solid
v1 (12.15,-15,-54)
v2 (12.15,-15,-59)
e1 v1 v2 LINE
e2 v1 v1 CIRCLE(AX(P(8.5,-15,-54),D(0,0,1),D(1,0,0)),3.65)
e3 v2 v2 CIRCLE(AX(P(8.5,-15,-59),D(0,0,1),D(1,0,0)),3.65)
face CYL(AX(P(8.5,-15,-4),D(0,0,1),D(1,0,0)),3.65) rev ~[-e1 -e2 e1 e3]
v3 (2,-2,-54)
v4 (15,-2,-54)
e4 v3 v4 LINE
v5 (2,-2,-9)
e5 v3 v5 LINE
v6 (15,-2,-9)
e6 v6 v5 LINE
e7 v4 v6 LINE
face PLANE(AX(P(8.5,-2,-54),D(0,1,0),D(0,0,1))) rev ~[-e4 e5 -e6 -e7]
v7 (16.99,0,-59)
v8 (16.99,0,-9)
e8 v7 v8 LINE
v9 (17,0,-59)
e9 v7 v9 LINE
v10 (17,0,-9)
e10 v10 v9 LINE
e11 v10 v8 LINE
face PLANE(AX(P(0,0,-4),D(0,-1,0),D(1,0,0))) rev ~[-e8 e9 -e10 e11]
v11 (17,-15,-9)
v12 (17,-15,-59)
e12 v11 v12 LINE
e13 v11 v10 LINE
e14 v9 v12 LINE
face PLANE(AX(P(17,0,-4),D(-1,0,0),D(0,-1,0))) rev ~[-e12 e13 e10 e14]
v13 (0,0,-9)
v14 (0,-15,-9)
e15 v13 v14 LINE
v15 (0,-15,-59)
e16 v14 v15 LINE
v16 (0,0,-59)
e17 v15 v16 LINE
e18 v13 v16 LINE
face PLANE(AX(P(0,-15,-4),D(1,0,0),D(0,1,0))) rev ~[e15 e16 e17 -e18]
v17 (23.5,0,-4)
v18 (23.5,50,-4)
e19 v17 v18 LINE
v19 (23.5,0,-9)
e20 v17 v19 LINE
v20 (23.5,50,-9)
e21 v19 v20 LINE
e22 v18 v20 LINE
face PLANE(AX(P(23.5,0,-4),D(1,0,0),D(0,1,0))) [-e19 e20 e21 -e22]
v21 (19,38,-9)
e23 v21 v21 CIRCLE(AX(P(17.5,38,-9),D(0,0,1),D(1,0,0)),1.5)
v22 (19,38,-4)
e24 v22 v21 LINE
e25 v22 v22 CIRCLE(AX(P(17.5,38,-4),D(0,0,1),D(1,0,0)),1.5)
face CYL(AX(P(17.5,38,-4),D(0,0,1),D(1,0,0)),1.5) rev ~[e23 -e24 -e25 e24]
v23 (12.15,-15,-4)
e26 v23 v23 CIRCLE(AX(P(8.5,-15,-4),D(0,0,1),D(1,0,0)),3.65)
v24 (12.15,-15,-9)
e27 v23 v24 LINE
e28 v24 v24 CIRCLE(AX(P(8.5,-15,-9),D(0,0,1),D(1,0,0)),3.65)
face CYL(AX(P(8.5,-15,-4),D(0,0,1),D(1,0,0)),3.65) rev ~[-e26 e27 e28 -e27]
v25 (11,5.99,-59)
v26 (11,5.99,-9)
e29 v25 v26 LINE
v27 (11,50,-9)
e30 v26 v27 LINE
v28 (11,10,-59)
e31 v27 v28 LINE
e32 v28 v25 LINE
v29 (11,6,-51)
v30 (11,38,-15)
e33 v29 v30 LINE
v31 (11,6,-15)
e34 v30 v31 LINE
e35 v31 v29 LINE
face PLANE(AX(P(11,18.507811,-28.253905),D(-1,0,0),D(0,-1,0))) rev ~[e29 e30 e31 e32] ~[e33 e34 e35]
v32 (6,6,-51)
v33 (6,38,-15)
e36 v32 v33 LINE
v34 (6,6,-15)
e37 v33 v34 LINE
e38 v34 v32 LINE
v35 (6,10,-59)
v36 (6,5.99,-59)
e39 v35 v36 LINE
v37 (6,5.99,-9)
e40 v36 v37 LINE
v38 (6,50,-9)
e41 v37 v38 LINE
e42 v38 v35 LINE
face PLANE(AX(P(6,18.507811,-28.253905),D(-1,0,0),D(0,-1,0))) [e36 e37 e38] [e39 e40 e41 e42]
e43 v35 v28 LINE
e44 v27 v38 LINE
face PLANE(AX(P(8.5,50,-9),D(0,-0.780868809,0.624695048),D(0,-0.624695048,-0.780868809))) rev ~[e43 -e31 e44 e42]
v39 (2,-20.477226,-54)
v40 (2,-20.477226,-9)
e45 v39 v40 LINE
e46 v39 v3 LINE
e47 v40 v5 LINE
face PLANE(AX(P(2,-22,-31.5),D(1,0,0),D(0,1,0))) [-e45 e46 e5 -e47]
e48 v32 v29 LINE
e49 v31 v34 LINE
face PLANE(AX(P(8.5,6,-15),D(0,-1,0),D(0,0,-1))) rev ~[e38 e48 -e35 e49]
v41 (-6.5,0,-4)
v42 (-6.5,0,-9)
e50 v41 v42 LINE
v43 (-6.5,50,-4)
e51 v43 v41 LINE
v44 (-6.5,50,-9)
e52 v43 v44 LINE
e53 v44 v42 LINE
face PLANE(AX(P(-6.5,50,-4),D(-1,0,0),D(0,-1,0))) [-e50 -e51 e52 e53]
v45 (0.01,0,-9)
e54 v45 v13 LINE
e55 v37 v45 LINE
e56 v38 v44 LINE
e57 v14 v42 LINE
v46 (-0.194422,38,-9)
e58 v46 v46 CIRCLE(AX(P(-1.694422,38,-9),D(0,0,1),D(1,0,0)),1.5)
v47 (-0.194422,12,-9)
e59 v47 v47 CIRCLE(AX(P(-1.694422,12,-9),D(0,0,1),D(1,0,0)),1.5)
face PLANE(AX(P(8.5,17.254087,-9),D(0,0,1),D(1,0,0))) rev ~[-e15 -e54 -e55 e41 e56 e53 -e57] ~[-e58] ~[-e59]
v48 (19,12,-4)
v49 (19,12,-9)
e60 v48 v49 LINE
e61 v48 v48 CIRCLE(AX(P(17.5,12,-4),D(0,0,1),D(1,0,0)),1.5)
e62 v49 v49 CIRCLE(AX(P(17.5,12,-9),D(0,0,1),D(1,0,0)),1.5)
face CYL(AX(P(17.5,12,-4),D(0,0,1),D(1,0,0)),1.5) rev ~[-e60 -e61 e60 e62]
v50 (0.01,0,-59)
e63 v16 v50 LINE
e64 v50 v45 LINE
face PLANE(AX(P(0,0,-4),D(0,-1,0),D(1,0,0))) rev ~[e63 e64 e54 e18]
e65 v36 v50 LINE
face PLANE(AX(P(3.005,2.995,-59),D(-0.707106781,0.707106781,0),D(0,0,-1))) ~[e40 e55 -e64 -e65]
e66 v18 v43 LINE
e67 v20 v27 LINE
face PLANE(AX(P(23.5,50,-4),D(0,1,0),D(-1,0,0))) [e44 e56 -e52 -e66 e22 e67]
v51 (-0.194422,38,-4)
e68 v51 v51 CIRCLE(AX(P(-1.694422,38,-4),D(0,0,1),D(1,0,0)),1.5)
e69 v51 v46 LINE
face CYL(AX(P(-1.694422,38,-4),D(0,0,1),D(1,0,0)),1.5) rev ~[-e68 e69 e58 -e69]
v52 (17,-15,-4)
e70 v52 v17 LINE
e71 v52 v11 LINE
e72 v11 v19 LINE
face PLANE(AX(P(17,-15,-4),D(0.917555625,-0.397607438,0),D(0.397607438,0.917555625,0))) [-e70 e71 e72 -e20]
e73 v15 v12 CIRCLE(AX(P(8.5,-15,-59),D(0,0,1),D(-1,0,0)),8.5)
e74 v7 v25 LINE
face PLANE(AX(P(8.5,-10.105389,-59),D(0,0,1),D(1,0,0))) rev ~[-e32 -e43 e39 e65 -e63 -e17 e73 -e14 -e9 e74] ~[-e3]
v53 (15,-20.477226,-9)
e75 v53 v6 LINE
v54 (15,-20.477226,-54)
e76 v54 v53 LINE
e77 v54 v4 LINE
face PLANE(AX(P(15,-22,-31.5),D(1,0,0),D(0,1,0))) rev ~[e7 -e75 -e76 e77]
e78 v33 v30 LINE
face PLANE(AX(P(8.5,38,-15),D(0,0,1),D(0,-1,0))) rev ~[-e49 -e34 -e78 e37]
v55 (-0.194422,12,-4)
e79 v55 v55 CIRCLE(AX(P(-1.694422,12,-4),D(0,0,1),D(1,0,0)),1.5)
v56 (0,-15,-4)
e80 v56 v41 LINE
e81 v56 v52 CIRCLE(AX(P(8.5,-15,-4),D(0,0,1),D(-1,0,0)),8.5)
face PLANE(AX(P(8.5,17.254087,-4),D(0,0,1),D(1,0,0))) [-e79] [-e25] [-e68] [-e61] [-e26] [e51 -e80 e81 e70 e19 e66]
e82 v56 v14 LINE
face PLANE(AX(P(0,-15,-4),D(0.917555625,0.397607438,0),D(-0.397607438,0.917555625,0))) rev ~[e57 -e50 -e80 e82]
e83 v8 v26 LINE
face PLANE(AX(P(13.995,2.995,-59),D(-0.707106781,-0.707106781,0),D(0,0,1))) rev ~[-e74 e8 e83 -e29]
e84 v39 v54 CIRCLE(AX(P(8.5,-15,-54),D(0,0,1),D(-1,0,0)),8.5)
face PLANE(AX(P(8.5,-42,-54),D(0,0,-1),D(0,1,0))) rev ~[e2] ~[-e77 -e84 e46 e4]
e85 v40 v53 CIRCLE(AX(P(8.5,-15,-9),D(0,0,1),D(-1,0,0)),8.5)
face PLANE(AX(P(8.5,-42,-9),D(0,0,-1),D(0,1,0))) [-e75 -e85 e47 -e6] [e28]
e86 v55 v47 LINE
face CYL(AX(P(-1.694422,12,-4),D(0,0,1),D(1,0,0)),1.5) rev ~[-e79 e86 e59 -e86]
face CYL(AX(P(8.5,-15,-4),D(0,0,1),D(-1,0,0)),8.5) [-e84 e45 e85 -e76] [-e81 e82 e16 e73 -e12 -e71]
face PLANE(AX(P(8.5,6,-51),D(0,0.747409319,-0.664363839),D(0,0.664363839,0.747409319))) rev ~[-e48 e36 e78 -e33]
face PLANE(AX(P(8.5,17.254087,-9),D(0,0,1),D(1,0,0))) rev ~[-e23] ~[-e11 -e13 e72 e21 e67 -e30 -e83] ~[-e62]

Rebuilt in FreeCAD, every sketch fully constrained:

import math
import FreeCAD as App
import Part
import Sketcher
from FreeCAD import Vector


def edges_at(feature, points):
    """Names of the edges that pass closest to the given points."""
    edges = feature.Shape.Edges
    near = lambda p: min(range(len(edges)), key=lambda i: edges[i].distToShape(Part.Vertex(*p))[0])
    return sorted({f"Edge{near(p) + 1}" for p in points})


def add_polygon(sketch, points):
    """Adds a closed chain of lines whose ends are joined by coincident constraints."""
    first, n = sketch.GeometryCount, len(points)
    for a, b in zip(points, points[1:] + points[:1]):
        sketch.addGeometry(Part.LineSegment(App.Vector(*a, 0), App.Vector(*b, 0)), False)
    for i in range(n):
        sketch.addConstraint(Sketcher.Constraint("Coincident", first + i, 2, first + (i + 1) % n, 1))

doc = App.newDocument("Part")
params = doc.addObject("Spreadsheet::Sheet", "Params")
for row, (alias, value) in enumerate([
    ("sketch1_diameter", "7.3 mm"),
    ("sketch1_radius", "8.5 mm"),
    ("sketch1_height", "15 mm"),
    ("pad1_length", "55 mm"),
    ("sketch2_diameter", "3 mm"),
    ("sketch2_diameter2", "7.4 mm"),
    ("sketch2_radius", "8.5 mm"),
    ("sketch2_width", "30 mm"),
    ("sketch2_height", "50 mm"),
    ("pad2_length", "5 mm"),
    ("sketch3_width", "10 mm"),
    ("sketch3_width2", "50 mm"),
    ("sketch3_width3", "32 mm"),
    ("sketch3_height", "36 mm"),
    ("pad3_length", "5 mm"),
    ("sketch4_width", "40 mm"),
    ("sketch4_height", "45 mm"),
    ("pocket1_length", "13 mm"),
    ("chamfer_size", "5.99 mm"),
], start=1):
    params.set(f"A{row}", alias)
    params.set(f"B{row}", "=" + value)
    params.setAlias(f"B{row}", alias)

body = doc.addObject("PartDesign::Body", "Body")

# Sketch on XY plane
sketch1 = doc.addObject("Sketcher::SketchObject", "Sketch")
body.addObject(sketch1)
sketch1.AttachmentSupport = (doc.XY_Plane, [""])
sketch1.MapMode = "FlatFace"
sketch1.addGeometry([
    Part.ArcOfCircle(Part.Circle(Vector(8.5, -15, 0), Vector(0, 0, 1), 8.5), math.radians(180), math.radians(360)),  # 0
    Part.LineSegment(Vector(17, -15, 0), Vector(17, 0, 0)),  # 1
    Part.LineSegment(Vector(17, 0, 0), Vector(0, 0, 0)),  # 2
    Part.LineSegment(Vector(0, 0, 0), Vector(0, -15, 0)),  # 3
    Part.Circle(Vector(8.5, -15, 0), Vector(0, 0, 1), 3.65),  # 4
], False)
sketch1.addConstraint([
    Sketcher.Constraint("Tangent", 0, 2, 1, 1),
    Sketcher.Constraint("Coincident", 1, 2, 2, 1),
    Sketcher.Constraint("Coincident", 2, 2, 3, 1),
    Sketcher.Constraint("Tangent", 3, 2, 0, 1),
    Sketcher.Constraint("Vertical", 1),
    Sketcher.Constraint("Horizontal", 2),
    Sketcher.Constraint("Vertical", 3),
    Sketcher.Constraint("Coincident", 2, 2, -1, 1),
    Sketcher.Constraint("Coincident", 4, 3, 0, 3),
    Sketcher.Constraint("Diameter", 4, 7.3),
    Sketcher.Constraint("Radius", 0, 8.5),
    Sketcher.Constraint("DistanceY", 1, 1, 1, 2, 15.0),
])
sketch1.setExpression("Constraints[9]", "Params.sketch1_diameter")
sketch1.setExpression("Constraints[10]", "Params.sketch1_radius")
sketch1.setExpression("Constraints[11]", "Params.sketch1_height")
pad1 = doc.addObject("PartDesign::Pad", "Pad")
body.addObject(pad1)
pad1.Profile = sketch1
pad1.setExpression("Length", "Params.pad1_length")
pad1.Reversed = True

# Sketch on XY plane
sketch2 = doc.addObject("Sketcher::SketchObject", "Sketch001")
body.addObject(sketch2)
sketch2.AttachmentSupport = (doc.XY_Plane, [""])
sketch2.MapMode = "FlatFace"
sketch2.addGeometry([
    Part.LineSegment(Vector(23.5, 0, 0), Vector(23.5, 50, 0)),  # 0
    Part.LineSegment(Vector(23.5, 50, 0), Vector(-6.5, 50, 0)),  # 1
    Part.LineSegment(Vector(-6.5, 50, 0), Vector(-6.5, 0, 0)),  # 2
    Part.LineSegment(Vector(-6.5, 0, 0), Vector(0, -15, 0)),  # 3
    Part.ArcOfCircle(Part.Circle(Vector(8.5, -15, 0), Vector(0, 0, 1), 8.5), math.radians(180), math.radians(360)),  # 4
    Part.LineSegment(Vector(17, -15, 0), Vector(23.5, 0, 0)),  # 5
    Part.Circle(Vector(8.5, -15, 0), Vector(0, 0, 1), 3.7),  # 6
    Part.Circle(Vector(-1.694422, 12, 0), Vector(0, 0, 1), 1.5),  # 7
    Part.Circle(Vector(-1.694422, 38, 0), Vector(0, 0, 1), 1.5),  # 8
    Part.Circle(Vector(17.5, 12, 0), Vector(0, 0, 1), 1.5),  # 9
    Part.Circle(Vector(17.5, 38, 0), Vector(0, 0, 1), 1.5),  # 10
], False)
sketch2.addConstraint([
    Sketcher.Constraint("Coincident", 0, 2, 1, 1),
    Sketcher.Constraint("Coincident", 1, 2, 2, 1),
    Sketcher.Constraint("Coincident", 2, 2, 3, 1),
    Sketcher.Constraint("Coincident", 3, 2, 4, 1),
    Sketcher.Constraint("Coincident", 4, 2, 5, 1),
    Sketcher.Constraint("Coincident", 5, 2, 0, 1),
    Sketcher.Constraint("Vertical", 0),
    Sketcher.Constraint("Horizontal", 1),
    Sketcher.Constraint("Vertical", 2),
    Sketcher.Constraint("Coincident", 6, 3, 4, 3),
    Sketcher.Constraint("Equal", 7, 8),
    Sketcher.Constraint("Equal", 8, 9),
    Sketcher.Constraint("Equal", 9, 10),
    Sketcher.Constraint("PointOnObject", 2, 2, -1),
    Sketcher.Constraint("PointOnObject", 3, 2, -2),
    Sketcher.Constraint("PointOnObject", 5, 2, -1),
    Sketcher.Constraint("Horizontal", 7, 3, 9, 3),
    Sketcher.Constraint("Horizontal", 8, 3, 10, 3),
    Sketcher.Constraint("Horizontal", 6, 3, 3, 2),
    Sketcher.Constraint("Horizontal", 3, 2, 4, 2),
    Sketcher.Constraint("Vertical", 7, 3, 8, 3),
    Sketcher.Constraint("Vertical", 9, 3, 10, 3),
    Sketcher.Constraint("Equal", 3, 5),
    Sketcher.Constraint("Diameter", 7, 3.0),
    Sketcher.Constraint("Diameter", 6, 7.4),
    Sketcher.Constraint("Radius", 4, 8.5),
    Sketcher.Constraint("DistanceX", 1, 2, 1, 1, 30.0),
    Sketcher.Constraint("DistanceY", 0, 1, 0, 2, 50.0),
    Sketcher.Constraint("DistanceY", 4, 3, -1, 1, 15.0),
    Sketcher.Constraint("DistanceY", -1, 1, 7, 3, 12.0),
    Sketcher.Constraint("DistanceY", -1, 1, 8, 3, 38.0),
    Sketcher.Constraint("DistanceX", 4, 3, 9, 3, 9.0),
    Sketcher.Constraint("DistanceX", 7, 3, 9, 3, 19.194422),
])
sketch2.setExpression("Constraints[23]", "Params.sketch2_diameter")
sketch2.setExpression("Constraints[24]", "Params.sketch2_diameter2")
sketch2.setExpression("Constraints[25]", "Params.sketch2_radius")
sketch2.setExpression("Constraints[26]", "Params.sketch2_width")
sketch2.setExpression("Constraints[27]", "Params.sketch2_height")
pad2 = doc.addObject("PartDesign::Pad", "Pad001")
body.addObject(pad2)
pad2.Profile = sketch2
pad2.setExpression("Length", "Params.pad2_length")
pad2.Reversed = True

# Sketch on YZ plane
sketch3 = doc.addObject("Sketcher::SketchObject", "Sketch002")
body.addObject(sketch3)
sketch3.AttachmentSupport = (doc.YZ_Plane, [""])
sketch3.MapMode = "FlatFace"
sketch3.AttachmentOffset = App.Placement(Vector(0, 0, 8.5), App.Rotation())
add_polygon(sketch3, [(0, -5), (0, -55), (10, -55), (50, -5)])  # lines 0-3
add_polygon(sketch3, [(6, -11), (38, -11), (6, -47)])  # lines 4-6
sketch3.addConstraint([
    Sketcher.Constraint("Vertical", 0),
    Sketcher.Constraint("Horizontal", 1),
    Sketcher.Constraint("Horizontal", 3),
    Sketcher.Constraint("Horizontal", 4),
    Sketcher.Constraint("Vertical", 6),
    Sketcher.Constraint("PointOnObject", 0, 2, -2),
    Sketcher.Constraint("Equal", 3, 0),
    Sketcher.Constraint("DistanceX", 1, 1, 1, 2, 10.0),
    Sketcher.Constraint("DistanceX", 3, 2, 3, 1, 50.0),
    Sketcher.Constraint("DistanceX", 4, 1, 4, 2, 32.0),
    Sketcher.Constraint("DistanceY", 6, 1, 6, 2, 36.0),
    Sketcher.Constraint("DistanceY", 0, 2, -1, 1, 55.0),
    Sketcher.Constraint("DistanceX", -1, 1, 4, 2, 38.0),
    Sketcher.Constraint("DistanceY", 4, 2, -1, 1, 11.0),
])
sketch3.setExpression("Constraints[14]", "Params.sketch3_width")
sketch3.setExpression("Constraints[15]", "Params.sketch3_width2")
sketch3.setExpression("Constraints[16]", "Params.sketch3_width3")
sketch3.setExpression("Constraints[17]", "Params.sketch3_height")
pad3 = doc.addObject("PartDesign::Pad", "Pad002")
body.addObject(pad3)
pad3.Profile = sketch3
pad3.setExpression("Length", "Params.pad3_length")
pad3.Midplane = True

# Sketch on YZ plane
sketch4 = doc.addObject("Sketcher::SketchObject", "Sketch003")
body.addObject(sketch4)
sketch4.AttachmentSupport = (doc.YZ_Plane, [""])
sketch4.MapMode = "FlatFace"
sketch4.AttachmentOffset = App.Placement(Vector(0, 0, 8.5), App.Rotation())
add_polygon(sketch4, [(-42, -5), (-42, -50), (-2, -50), (-2, -5)])  # lines 0-3
sketch4.addConstraint([
    Sketcher.Constraint("Vertical", 0),
    Sketcher.Constraint("Horizontal", 1),
    Sketcher.Constraint("Vertical", 2),
    Sketcher.Constraint("Horizontal", 3),
    Sketcher.Constraint("DistanceX", 1, 1, 1, 2, 40.0),
    Sketcher.Constraint("DistanceY", 0, 2, 0, 1, 45.0),
    Sketcher.Constraint("DistanceX", 0, 2, -1, 1, 42.0),
    Sketcher.Constraint("DistanceY", 0, 2, -1, 1, 50.0),
])
sketch4.setExpression("Constraints[8]", "Params.sketch4_width")
sketch4.setExpression("Constraints[9]", "Params.sketch4_height")
pocket1 = doc.addObject("PartDesign::Pocket", "Pocket")
body.addObject(pocket1)
pocket1.Profile = sketch4
pocket1.setExpression("Length", "Params.pocket1_length")
pocket1.Midplane = True
doc.recompute()

chamfer = doc.addObject("PartDesign::Chamfer", "Chamfer")
body.addObject(chamfer)
chamfer.Base = (pocket1, edges_at(pocket1, [(6, 0, -30), (11, 0, -30)]))
chamfer.setExpression("Size", "Params.chamfer_size")
body2 = doc.addObject("PartDesign::Body", "Body001")
doc.recompute()

body.Placement = App.Placement(Vector(0, 0, -4), App.Rotation(Vector(0, 0, 1), 0))
boolean = doc.addObject("PartDesign::Boolean", "Boolean")
body2.addObject(boolean)
boolean.Type = "Fuse"
boolean.addObjects([body])

doc.recompute()
